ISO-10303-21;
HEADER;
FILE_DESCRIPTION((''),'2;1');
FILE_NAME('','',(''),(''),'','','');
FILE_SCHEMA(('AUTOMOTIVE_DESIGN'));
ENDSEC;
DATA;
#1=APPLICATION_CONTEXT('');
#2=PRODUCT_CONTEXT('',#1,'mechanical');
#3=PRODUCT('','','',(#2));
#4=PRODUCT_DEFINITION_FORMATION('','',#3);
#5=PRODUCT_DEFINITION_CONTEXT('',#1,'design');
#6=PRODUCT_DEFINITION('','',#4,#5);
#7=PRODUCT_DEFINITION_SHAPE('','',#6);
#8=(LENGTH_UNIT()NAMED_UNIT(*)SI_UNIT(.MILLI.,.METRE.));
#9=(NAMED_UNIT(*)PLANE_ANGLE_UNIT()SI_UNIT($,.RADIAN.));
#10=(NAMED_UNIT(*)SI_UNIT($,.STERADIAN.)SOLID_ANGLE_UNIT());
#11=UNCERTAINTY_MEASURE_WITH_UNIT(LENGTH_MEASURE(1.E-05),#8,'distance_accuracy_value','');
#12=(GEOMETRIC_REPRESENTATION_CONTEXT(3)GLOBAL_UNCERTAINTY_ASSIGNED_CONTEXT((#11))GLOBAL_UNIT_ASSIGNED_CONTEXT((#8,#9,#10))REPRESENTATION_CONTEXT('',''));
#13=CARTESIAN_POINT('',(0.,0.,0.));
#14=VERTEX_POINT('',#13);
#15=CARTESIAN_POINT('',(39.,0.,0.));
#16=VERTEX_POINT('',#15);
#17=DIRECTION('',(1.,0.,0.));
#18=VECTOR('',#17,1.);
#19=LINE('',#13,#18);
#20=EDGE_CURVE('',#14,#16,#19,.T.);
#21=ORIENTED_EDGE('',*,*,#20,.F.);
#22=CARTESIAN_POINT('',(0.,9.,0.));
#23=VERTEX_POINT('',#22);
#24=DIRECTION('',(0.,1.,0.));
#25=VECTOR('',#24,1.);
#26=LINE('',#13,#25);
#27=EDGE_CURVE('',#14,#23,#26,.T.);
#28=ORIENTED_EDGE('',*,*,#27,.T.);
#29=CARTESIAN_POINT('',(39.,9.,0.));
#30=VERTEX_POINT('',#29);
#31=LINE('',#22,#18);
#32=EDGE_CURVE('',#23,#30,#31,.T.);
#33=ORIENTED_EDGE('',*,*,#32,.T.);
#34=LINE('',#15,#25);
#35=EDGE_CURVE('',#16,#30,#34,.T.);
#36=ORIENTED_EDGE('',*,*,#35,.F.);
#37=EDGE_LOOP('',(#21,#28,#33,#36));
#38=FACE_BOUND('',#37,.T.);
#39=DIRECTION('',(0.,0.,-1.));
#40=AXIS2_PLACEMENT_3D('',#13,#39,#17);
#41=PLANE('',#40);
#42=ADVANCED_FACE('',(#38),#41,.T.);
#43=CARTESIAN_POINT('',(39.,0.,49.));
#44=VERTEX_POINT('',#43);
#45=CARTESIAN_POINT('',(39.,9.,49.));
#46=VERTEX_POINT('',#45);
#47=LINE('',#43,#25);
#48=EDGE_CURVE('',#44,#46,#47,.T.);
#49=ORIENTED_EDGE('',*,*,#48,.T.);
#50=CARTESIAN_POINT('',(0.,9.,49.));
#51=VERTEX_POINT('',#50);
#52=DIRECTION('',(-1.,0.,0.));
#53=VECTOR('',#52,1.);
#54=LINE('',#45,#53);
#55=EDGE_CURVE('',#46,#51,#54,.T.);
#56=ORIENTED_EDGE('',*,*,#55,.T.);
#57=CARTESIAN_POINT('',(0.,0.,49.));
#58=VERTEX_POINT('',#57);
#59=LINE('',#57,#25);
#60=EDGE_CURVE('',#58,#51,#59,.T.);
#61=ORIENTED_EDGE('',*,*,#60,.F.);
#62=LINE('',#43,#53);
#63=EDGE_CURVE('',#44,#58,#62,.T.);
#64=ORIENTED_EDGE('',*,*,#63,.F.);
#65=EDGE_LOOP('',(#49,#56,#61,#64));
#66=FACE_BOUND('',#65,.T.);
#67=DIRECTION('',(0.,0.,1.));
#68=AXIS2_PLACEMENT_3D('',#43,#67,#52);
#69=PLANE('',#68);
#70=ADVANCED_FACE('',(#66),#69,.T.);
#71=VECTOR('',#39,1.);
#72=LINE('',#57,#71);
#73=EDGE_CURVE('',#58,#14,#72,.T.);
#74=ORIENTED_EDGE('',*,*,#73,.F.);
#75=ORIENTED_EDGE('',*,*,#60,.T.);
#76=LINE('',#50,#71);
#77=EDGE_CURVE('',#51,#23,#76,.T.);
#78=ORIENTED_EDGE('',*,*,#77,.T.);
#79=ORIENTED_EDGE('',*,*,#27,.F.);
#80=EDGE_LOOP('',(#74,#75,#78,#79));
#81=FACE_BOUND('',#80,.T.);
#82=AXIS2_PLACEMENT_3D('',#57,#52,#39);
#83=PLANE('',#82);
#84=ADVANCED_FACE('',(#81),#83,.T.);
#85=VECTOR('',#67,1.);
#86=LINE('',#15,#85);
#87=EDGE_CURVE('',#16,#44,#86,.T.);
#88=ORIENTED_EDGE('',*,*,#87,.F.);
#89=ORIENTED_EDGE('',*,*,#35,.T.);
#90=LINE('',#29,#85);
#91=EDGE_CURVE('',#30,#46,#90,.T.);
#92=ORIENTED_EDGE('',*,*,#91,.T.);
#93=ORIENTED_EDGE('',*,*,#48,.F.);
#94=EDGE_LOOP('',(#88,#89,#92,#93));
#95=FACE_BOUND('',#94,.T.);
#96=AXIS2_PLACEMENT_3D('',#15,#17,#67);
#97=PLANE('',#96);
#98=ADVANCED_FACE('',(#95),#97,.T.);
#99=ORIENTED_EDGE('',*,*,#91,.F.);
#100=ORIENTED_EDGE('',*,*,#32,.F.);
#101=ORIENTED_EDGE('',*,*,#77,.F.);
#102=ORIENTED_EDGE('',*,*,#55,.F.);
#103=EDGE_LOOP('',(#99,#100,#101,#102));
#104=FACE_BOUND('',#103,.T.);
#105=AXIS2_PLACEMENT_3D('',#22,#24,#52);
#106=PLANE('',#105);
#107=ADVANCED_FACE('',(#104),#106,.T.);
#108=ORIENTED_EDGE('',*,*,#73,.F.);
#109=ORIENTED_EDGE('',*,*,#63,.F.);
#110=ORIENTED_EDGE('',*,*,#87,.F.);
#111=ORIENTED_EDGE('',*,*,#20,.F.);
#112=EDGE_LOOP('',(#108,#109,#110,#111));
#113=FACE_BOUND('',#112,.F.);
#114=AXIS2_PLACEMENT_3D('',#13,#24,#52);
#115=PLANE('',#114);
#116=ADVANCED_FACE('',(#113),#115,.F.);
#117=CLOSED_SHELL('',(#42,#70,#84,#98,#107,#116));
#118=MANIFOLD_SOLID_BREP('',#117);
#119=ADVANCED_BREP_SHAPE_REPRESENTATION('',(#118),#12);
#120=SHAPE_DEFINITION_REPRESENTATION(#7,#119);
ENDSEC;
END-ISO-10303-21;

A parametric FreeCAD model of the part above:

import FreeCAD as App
import Part
import Sketcher
from FreeCAD import Vector
Q = App.Units.Quantity


def add_polygon(sketch, points):
    """Adds a closed chain of lines whose ends are joined by coincident constraints."""
    first, n = sketch.GeometryCount, len(points)
    for a, b in zip(points, points[1:] + points[:1]):
        sketch.addGeometry(Part.LineSegment(App.Vector(*a, 0), App.Vector(*b, 0)), False)
    for i in range(n):
        sketch.addConstraint(Sketcher.Constraint("Coincident", first + i, 2, first + (i + 1) % n, 1))

doc = App.newDocument("Part")
body = doc.addObject("PartDesign::Body", "Body")

sketch1 = body.newObject("Sketcher::SketchObject", "Sketch")
sketch1.AttachmentSupport = (doc.getObject("XZ_Plane"), [""])
sketch1.MapMode = "FlatFace"
add_polygon(sketch1, [(39, 0), (0, 0), (0, 49), (39, 49)])
sketch1.addConstraint([
    Sketcher.Constraint("Horizontal", 0),
    Sketcher.Constraint("Vertical", 1),
    Sketcher.Constraint("Horizontal", 2),
    Sketcher.Constraint("Vertical", 3),
    Sketcher.Constraint("Coincident", 0, 2, -1, 1),
    Sketcher.Constraint("DistanceX", 0, 2, 0, 1, Q("39 mm")),
    Sketcher.Constraint("DistanceY", 1, 1, 1, 2, Q("49 mm")),
])
pad1 = body.newObject("PartDesign::Pad", "Pad")
pad1.Profile = sketch1
pad1.Length = 9
pad1.Reversed = True

doc.recompute()
